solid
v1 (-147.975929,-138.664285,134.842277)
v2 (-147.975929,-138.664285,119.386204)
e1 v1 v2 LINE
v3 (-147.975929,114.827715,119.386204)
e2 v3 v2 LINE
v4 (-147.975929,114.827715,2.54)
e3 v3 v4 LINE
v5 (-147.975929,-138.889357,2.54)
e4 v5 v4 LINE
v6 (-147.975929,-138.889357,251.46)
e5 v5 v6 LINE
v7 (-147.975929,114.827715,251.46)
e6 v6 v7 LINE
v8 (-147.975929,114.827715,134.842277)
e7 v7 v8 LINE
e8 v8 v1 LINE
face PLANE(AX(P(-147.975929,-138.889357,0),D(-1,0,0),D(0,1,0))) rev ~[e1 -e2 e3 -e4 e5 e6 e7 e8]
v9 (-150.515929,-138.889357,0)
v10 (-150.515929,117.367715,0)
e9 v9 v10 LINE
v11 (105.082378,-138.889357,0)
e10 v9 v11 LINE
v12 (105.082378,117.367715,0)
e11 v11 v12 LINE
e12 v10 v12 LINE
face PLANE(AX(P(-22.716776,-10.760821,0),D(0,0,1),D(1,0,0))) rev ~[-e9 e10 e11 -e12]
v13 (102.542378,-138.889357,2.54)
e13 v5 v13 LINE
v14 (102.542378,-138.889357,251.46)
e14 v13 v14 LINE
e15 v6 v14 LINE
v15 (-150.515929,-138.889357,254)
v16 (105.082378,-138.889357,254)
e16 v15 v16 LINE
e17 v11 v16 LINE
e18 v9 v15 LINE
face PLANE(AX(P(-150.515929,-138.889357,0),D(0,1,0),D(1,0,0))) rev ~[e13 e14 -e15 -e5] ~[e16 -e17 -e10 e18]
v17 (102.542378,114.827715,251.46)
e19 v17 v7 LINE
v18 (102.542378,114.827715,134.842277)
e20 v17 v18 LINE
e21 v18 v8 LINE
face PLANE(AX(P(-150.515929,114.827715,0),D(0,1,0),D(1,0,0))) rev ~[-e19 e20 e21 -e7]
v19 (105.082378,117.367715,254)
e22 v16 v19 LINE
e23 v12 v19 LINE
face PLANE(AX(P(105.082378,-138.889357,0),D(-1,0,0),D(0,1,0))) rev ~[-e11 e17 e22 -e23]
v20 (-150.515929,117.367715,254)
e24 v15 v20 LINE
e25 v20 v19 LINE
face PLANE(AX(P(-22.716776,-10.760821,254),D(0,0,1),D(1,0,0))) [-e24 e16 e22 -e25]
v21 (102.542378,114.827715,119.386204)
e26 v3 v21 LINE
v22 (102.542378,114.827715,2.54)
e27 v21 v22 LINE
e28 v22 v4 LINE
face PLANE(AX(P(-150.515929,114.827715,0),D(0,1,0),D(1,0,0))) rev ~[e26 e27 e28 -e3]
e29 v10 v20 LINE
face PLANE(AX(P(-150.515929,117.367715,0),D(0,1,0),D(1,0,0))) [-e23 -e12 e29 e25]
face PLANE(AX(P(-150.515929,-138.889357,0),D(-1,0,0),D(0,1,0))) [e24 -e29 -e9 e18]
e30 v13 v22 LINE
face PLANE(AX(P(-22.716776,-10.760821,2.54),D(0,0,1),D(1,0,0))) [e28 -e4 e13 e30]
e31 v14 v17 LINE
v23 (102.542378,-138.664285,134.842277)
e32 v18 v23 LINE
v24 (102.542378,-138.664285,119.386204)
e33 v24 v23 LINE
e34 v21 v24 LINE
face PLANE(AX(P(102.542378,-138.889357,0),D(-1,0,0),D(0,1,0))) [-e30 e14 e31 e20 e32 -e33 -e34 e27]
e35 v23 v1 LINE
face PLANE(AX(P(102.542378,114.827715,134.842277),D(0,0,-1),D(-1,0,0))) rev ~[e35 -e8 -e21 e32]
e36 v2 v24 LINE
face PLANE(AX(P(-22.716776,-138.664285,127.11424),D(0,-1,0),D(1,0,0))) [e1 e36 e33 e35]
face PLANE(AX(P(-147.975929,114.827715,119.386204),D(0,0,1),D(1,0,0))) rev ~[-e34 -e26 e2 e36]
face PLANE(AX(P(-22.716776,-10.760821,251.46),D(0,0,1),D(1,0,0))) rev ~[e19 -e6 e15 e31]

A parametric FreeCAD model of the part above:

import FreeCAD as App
import Part
import Sketcher

V = App.Vector
Q = App.Units.Quantity


def faces_at(feature, points):
    """Names of the faces that lie closest to the given points."""
    faces = feature.Shape.Faces
    near = lambda p: min(range(len(faces)), key=lambda i: faces[i].distToShape(Part.Vertex(*p))[0])
    return sorted({f"Face{near(p) + 1}" for p in points})


def add_polygon(sketch, points):
    """Adds a closed chain of lines whose ends are joined by coincident constraints."""
    first, n = sketch.GeometryCount, len(points)
    for a, b in zip(points, points[1:] + points[:1]):
        sketch.addGeometry(Part.LineSegment(App.Vector(*a, 0), App.Vector(*b, 0)), False)
    for i in range(n):
        sketch.addConstraint(Sketcher.Constraint("Coincident", first + i, 2, first + (i + 1) % n, 1))

doc = App.newDocument("Part")
body = doc.addObject("PartDesign::Body", "Body")

# Sketch on XY plane
sketch1 = body.newObject("Sketcher::SketchObject", "Sketch")
sketch1.AttachmentSupport = (doc.getObject("XY_Plane"), [""])
sketch1.MapMode = "FlatFace"
add_polygon(sketch1, [(-150.515929, 117.367715), (-150.515929, -138.889357), (105.082378, -138.889357), (105.082378, 117.367715)])  # lines 0-3
sketch1.addConstraint([
    Sketcher.Constraint("Vertical", 0),
    Sketcher.Constraint("Horizontal", 1),
    Sketcher.Constraint("Vertical", 2),
    Sketcher.Constraint("Horizontal", 3),
    Sketcher.Constraint("DistanceX", 1, 1, 1, 2, Q("255.598307 mm")),
    Sketcher.Constraint("DistanceY", 0, 2, 0, 1, Q("256.257072 mm")),
    Sketcher.Constraint("DistanceX", 0, 2, -1, 1, Q("150.515929 mm")),
    Sketcher.Constraint("DistanceY", 0, 2, -1, 1, Q("138.889357 mm")),
])
pad1 = body.newObject("PartDesign::Pad", "Pad")
pad1.Profile = sketch1
pad1.Length = Q("10 in")
doc.recompute()

thickness = body.newObject("PartDesign::Thickness", "Thickness")
thickness.Base = (pad1, faces_at(pad1, [(-22.717, -138.889, 127)]))
thickness.Value = Q("0.1 in")
thickness.Reversed = True
thickness.Join = "Arc"

# Sketch on XZ plane
sketch2 = body.newObject("Sketcher::SketchObject", "Sketch001")
sketch2.AttachmentSupport = (doc.getObject("XZ_Plane"), [""])
sketch2.MapMode = "FlatFace"
sketch2.AttachmentOffset = App.Placement(V(0, 0, -114.827715), App.Rotation())
add_polygon(sketch2, [(102.542378, 119.386204), (102.542378, 134.842277), (-147.975929, 134.842277), (-147.975929, 119.386204)])  # lines 0-3
sketch2.addConstraint([
    Sketcher.Constraint("Vertical", 0),
    Sketcher.Constraint("Horizontal", 1),
    Sketcher.Constraint("Vertical", 2),
    Sketcher.Constraint("Horizontal", 3),
    Sketcher.Constraint("DistanceX", 1, 2, 1, 1, Q("250.518307 mm")),
    Sketcher.Constraint("DistanceY", 0, 1, 0, 2, Q("15.456073 mm")),
    Sketcher.Constraint("DistanceX", 1, 2, -1, 1, Q("147.975929 mm")),
    Sketcher.Constraint("DistanceY", -1, 1, 0, 2, Q("134.842277 mm")),
])
pad2 = body.newObject("PartDesign::Pad", "Pad001")
pad2.Profile = sketch2
pad2.Length = Q("9.98 in")

doc.recompute()
